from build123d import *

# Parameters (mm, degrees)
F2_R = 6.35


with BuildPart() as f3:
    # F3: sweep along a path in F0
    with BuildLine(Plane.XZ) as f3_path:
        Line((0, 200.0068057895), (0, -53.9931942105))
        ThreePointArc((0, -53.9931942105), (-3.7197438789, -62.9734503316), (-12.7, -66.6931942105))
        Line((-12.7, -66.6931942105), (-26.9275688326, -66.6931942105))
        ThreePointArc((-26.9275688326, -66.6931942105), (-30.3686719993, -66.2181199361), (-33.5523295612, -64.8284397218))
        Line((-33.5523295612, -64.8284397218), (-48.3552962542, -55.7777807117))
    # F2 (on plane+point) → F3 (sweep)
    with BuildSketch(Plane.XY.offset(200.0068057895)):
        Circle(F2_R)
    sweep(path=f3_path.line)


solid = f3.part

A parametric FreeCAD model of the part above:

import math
import FreeCAD as App
import Part
import Sketcher
Q = App.Units.Quantity

doc = App.newDocument("Part")
body = doc.addObject("PartDesign::Body", "Body")

sketch1 = body.newObject("Sketcher::SketchObject", "Sketch")
sketch1.AttachmentSupport = (doc.getObject("XY_Plane"), [""])
sketch1.MapMode = "FlatFace"
sketch1.AttachmentOffset = App.Placement(App.Vector(0, 0, 200.006806), App.Rotation())
sketch1.addGeometry(Part.Circle(App.Vector(0, 0, 0), App.Vector(0, 0, 1), 6), False)
sketch1.addConstraint([
    Sketcher.Constraint("Coincident", 0, 3, -1, 1),
    Sketcher.Constraint("Diameter", 0, Q("0.5 in")),
])

sketch2 = body.newObject("Sketcher::SketchObject", "Sketch001")
sketch2.AttachmentSupport = (doc.getObject("XZ_Plane"), [""])
sketch2.MapMode = "FlatFace"
sketch2.addGeometry([
    Part.LineSegment(App.Vector(0, 200, 0), App.Vector(0, -54, 0)),
    Part.ArcOfCircle(Part.Circle(App.Vector(-13, -54, 0), App.Vector(0, 0, 1), 13), math.radians(-90), math.radians(0)),
    Part.LineSegment(App.Vector(-13, -67, 0), App.Vector(-27, -67, 0)),
    Part.ArcOfCircle(Part.Circle(App.Vector(-27, -54, 0), App.Vector(0, 0, 1), 13), math.radians(-121), math.radians(-90)),
    Part.LineSegment(App.Vector(-34, -65, 0), App.Vector(-48, -56, 0)),
], False)
sketch2.addConstraint([
    Sketcher.Constraint("Tangent", 0, 2, 1, 2),
    Sketcher.Constraint("Tangent", 1, 1, 2, 1),
    Sketcher.Constraint("Tangent", 2, 2, 3, 2),
    Sketcher.Constraint("Tangent", 3, 1, 4, 1),
    Sketcher.Constraint("Vertical", 0),
    Sketcher.Constraint("Horizontal", 2),
    Sketcher.Constraint("Equal", 1, 3),
    Sketcher.Constraint("PointOnObject", 0, 1, -2),
    Sketcher.Constraint("Radius", 1, Q("0.5 in")),
    Sketcher.Constraint("DistanceY", 0, 2, 0, 1, Q("10 in")),
    Sketcher.Constraint("DistanceX", 2, 2, 2, 1, Q("14.227569 mm")),
    Sketcher.Constraint("Distance", 4, Q("17.350569 mm")),
    Sketcher.Constraint("DistanceX", 3, 1, -1, 1, Q("33.55233 mm")),
    Sketcher.Constraint("DistanceY", 3, 1, -1, 1, Q("64.82844 mm")),
])
doc.recompute()

additivepipe = body.newObject("PartDesign::AdditivePipe", "AdditivePipe")
additivepipe.Profile = sketch1
additivepipe.Spine = (sketch2, ["Edge1", "Edge2", "Edge3", "Edge4", "Edge5"])

doc.recompute()
